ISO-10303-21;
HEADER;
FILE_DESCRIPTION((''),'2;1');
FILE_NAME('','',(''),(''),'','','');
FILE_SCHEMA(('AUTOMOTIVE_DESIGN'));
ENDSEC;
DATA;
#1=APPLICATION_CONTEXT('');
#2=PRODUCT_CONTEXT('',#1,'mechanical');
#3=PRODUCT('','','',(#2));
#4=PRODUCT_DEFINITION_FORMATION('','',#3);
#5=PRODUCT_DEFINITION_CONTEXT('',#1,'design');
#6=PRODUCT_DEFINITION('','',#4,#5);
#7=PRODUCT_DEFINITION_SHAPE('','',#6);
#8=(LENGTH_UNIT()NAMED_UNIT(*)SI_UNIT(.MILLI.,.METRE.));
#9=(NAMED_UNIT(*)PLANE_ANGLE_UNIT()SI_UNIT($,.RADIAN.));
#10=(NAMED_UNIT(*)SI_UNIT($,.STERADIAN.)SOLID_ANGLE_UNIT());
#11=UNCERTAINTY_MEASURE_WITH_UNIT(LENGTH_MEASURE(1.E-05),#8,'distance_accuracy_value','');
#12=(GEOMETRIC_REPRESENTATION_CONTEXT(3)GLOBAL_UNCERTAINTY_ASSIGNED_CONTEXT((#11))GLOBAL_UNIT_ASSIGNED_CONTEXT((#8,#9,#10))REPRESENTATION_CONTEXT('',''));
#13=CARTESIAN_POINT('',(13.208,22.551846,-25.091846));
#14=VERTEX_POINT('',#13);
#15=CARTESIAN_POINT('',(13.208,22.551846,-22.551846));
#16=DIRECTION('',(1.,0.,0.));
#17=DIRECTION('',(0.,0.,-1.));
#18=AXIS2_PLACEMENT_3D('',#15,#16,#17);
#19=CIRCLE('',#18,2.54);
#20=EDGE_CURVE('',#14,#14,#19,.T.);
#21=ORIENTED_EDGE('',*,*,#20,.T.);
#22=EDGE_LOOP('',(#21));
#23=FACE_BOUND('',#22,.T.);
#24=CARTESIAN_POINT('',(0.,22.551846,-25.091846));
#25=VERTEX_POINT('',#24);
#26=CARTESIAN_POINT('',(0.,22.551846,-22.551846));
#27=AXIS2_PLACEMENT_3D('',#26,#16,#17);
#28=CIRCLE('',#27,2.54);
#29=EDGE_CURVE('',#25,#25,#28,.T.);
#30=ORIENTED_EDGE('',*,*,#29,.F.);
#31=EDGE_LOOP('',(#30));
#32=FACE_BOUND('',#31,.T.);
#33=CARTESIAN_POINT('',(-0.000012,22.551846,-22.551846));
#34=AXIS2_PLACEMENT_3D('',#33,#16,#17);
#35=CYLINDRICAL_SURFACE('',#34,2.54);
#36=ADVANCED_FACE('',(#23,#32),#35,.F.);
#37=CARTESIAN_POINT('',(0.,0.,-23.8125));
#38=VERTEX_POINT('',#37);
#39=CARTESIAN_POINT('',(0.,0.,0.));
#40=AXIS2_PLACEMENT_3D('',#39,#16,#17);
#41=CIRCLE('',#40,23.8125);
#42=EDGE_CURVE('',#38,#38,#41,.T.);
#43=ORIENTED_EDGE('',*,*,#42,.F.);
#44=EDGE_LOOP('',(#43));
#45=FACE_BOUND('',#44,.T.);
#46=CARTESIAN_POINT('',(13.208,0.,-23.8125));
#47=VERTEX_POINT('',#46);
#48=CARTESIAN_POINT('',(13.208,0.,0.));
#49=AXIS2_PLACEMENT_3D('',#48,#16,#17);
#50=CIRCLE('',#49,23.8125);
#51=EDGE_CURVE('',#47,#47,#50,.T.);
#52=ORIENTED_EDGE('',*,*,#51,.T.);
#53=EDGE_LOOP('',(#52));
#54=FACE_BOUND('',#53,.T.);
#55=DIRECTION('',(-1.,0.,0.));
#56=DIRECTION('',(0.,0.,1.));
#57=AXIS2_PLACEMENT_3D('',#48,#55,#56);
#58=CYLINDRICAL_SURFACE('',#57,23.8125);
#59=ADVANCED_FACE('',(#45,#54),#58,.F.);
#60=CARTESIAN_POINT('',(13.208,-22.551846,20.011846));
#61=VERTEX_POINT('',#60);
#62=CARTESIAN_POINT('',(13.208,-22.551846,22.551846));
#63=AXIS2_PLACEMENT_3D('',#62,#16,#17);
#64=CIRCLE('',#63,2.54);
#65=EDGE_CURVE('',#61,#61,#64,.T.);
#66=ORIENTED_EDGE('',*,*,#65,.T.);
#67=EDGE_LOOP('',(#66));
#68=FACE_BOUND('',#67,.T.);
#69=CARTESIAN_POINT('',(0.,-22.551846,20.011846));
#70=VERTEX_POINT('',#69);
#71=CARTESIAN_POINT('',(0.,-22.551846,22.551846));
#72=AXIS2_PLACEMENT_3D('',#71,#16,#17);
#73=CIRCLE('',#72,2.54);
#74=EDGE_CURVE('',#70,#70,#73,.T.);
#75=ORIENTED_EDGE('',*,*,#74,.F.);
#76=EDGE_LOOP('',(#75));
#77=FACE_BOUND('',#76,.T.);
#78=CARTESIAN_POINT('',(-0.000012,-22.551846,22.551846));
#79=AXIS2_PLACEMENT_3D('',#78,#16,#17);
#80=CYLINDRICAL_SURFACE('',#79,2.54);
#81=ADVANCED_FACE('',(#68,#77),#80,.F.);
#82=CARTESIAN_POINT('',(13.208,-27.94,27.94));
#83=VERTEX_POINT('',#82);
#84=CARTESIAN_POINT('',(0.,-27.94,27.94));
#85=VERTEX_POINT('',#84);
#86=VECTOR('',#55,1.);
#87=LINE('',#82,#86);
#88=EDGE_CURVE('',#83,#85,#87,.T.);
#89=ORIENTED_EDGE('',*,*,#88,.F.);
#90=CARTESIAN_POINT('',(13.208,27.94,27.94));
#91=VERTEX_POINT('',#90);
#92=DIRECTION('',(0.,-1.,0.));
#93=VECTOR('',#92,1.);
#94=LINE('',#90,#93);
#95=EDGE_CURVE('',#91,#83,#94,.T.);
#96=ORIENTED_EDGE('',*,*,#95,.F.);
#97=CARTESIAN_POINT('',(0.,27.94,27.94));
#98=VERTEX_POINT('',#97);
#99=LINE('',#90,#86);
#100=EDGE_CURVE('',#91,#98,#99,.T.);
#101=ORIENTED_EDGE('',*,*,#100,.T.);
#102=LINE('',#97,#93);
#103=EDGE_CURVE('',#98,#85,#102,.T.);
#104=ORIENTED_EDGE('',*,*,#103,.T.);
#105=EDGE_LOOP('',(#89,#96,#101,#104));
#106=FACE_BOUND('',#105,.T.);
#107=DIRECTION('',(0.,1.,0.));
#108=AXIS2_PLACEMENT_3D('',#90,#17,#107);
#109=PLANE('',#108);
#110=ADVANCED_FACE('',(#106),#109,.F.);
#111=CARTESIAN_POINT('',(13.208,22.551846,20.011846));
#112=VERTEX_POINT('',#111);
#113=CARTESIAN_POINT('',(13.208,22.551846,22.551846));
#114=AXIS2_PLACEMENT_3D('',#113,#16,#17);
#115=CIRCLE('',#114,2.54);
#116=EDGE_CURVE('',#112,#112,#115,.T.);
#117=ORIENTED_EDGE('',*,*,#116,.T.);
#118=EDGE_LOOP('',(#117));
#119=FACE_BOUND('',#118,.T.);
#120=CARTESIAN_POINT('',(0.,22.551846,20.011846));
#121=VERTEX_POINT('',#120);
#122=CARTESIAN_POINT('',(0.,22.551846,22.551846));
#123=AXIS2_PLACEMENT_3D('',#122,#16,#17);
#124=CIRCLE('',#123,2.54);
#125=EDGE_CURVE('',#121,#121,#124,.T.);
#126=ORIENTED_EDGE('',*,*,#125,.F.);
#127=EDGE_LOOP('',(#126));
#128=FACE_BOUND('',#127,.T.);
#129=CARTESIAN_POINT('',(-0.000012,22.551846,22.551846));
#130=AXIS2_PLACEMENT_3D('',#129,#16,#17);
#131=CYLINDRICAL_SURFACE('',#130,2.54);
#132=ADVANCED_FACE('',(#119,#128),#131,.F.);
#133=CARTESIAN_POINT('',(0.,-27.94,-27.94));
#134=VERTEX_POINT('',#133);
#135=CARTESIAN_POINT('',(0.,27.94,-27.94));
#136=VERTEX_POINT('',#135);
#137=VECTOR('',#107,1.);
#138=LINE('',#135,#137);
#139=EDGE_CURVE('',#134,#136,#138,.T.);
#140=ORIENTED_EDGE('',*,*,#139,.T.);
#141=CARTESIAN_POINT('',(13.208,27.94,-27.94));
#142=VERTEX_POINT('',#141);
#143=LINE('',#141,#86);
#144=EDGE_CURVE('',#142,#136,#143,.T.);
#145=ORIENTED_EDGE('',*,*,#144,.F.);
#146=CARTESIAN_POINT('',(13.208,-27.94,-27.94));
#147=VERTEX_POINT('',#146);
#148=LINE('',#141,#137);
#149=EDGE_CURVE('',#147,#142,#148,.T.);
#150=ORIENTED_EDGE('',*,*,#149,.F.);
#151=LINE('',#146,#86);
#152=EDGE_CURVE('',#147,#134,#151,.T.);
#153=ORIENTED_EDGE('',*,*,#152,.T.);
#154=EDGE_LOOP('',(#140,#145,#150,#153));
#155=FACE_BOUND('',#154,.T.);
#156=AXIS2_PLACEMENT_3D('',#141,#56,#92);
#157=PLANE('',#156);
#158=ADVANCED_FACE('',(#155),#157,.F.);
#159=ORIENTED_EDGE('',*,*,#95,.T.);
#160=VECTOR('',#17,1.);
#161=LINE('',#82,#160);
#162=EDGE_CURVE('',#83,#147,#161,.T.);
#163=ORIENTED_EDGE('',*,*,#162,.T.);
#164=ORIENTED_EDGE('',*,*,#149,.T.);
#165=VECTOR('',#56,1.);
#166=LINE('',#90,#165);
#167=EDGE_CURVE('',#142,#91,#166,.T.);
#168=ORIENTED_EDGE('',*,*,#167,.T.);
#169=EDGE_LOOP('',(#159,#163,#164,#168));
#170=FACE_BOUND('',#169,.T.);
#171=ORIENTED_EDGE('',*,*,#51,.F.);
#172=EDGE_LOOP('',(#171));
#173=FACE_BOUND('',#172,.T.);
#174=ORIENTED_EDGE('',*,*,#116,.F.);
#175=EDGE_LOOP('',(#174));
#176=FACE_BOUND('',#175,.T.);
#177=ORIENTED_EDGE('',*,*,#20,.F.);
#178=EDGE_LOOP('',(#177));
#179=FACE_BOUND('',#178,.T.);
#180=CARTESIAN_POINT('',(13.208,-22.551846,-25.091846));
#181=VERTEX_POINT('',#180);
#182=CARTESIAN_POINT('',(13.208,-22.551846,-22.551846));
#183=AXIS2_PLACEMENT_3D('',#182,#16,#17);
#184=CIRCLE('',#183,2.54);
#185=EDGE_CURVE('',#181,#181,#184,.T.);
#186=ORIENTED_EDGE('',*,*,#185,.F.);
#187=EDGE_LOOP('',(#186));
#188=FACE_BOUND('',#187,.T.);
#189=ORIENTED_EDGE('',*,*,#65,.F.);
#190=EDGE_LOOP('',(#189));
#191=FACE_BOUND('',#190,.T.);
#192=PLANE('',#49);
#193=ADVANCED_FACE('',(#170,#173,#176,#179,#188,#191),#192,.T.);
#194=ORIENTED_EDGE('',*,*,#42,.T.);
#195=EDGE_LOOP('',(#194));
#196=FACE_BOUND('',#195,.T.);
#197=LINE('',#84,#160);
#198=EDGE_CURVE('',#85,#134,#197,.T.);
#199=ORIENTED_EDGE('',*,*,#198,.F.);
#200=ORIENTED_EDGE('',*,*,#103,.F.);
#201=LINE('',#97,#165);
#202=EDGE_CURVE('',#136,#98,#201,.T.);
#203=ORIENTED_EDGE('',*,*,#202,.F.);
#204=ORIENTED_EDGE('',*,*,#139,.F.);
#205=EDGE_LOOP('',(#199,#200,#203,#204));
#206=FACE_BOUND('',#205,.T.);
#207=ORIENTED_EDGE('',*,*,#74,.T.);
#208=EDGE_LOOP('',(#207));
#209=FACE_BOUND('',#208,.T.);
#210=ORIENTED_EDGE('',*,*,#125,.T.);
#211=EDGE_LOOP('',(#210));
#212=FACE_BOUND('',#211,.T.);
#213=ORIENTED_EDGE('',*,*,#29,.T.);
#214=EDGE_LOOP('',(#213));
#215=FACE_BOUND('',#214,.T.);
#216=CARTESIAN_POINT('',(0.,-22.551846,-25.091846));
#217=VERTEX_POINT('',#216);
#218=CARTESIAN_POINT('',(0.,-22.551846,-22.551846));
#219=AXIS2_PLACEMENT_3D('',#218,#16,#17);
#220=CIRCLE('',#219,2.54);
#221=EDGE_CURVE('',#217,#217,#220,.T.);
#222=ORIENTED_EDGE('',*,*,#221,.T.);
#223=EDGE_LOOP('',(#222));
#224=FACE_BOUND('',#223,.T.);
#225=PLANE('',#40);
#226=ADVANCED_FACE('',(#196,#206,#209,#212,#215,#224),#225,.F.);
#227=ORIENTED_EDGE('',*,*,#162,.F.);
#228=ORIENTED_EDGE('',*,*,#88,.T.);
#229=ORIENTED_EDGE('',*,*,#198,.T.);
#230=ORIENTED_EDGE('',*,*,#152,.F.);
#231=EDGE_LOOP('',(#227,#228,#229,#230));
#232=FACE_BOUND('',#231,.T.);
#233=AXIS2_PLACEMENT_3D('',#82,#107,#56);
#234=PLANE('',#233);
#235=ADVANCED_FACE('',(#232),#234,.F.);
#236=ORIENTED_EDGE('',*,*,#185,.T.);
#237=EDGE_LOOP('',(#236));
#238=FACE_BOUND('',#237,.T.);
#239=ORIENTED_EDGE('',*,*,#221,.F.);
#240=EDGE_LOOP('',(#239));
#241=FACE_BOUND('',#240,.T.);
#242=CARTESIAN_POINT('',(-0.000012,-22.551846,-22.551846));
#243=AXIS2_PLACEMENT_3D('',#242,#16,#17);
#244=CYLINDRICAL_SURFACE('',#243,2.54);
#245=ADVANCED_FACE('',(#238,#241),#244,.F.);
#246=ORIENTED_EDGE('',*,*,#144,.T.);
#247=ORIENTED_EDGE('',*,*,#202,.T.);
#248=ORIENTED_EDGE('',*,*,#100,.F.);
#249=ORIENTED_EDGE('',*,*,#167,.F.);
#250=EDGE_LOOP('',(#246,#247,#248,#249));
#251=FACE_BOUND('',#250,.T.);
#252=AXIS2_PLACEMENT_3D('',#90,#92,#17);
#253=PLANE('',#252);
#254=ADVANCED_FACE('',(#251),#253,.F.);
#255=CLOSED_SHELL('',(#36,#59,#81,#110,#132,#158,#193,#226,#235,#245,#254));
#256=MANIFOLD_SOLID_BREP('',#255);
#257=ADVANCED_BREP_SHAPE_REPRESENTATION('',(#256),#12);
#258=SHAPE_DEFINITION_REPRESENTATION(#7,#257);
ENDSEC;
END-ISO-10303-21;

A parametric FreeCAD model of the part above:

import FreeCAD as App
import Part
import Sketcher

V = App.Vector
Q = App.Units.Quantity


def add_polygon(sketch, points):
    """Adds a closed chain of lines whose ends are joined by coincident constraints."""
    first, n = sketch.GeometryCount, len(points)
    for a, b in zip(points, points[1:] + points[:1]):
        sketch.addGeometry(Part.LineSegment(App.Vector(*a, 0), App.Vector(*b, 0)), False)
    for i in range(n):
        sketch.addConstraint(Sketcher.Constraint("Coincident", first + i, 2, first + (i + 1) % n, 1))

doc = App.newDocument("Part")
params = doc.addObject("Spreadsheet::Sheet", "Params")
for row, (alias, value) in enumerate([
    ("sketch1_diameter", "1.875 in"),
    ("sketch1_width", "2.2 in"),
    ("pad1_length", "0.52 in"),
    ("sketch2_diameter", "0.2 in"),
], start=1):
    params.set(f"A{row}", alias)
    params.set(f"B{row}", "=" + value)
    params.setAlias(f"B{row}", alias)

body = doc.addObject("PartDesign::Body", "Body")

sketch1 = body.newObject("Sketcher::SketchObject", "Sketch")
sketch1.AttachmentSupport = (doc.getObject("YZ_Plane"), [""])
sketch1.MapMode = "FlatFace"
add_polygon(sketch1, [(28, 28), (-28, 28), (-28, -28), (28, -28)])
sketch1.addGeometry(Part.Circle(V(0, 0, 0), V(0, 0, 1), 24), False)
sketch1.addConstraint(Sketcher.Constraint("Horizontal", 0))
sketch1.addConstraint(Sketcher.Constraint("Vertical", 1))
sketch1.addConstraint(Sketcher.Constraint("Horizontal", 2))
sketch1.addConstraint(Sketcher.Constraint("Vertical", 3))
sketch1.addConstraint(Sketcher.Constraint("Coincident", 4, 3, -1, 1))
sketch1.addConstraint(Sketcher.Constraint("Symmetric", 0, 2, 2, 2, -1, 1))
sketch1.addConstraint(Sketcher.Constraint("Equal", 2, 1))
sketch1.addConstraint(Sketcher.Constraint("Diameter", 4, Q("1.875 in")))
sketch1.addConstraint(Sketcher.Constraint("DistanceX", 0, 2, 0, 1, Q("2.2 in")))
sketch1.setExpression("Constraints[11]", "Params.sketch1_diameter")
sketch1.setExpression("Constraints[12]", "Params.sketch1_width")
pad1 = body.newObject("PartDesign::Pad", "Pad")
pad1.Profile = sketch1
pad1.setExpression("Length", "Params.pad1_length")

sketch2 = body.newObject("Sketcher::SketchObject", "Sketch001")
sketch2.AttachmentSupport = (doc.getObject("YZ_Plane"), [""])
sketch2.MapMode = "FlatFace"
sketch2.addGeometry(Part.Circle(V(-22.6, 22.6, 0), V(0, 0, 1), 2.5), False)
sketch2.addGeometry(Part.Circle(V(22.6, 22.6, 0), V(0, 0, 1), 2.5), False)
sketch2.addGeometry(Part.Circle(V(22.6, -22.6, 0), V(0, 0, 1), 2.5), False)
sketch2.addGeometry(Part.Circle(V(-22.6, -22.6, 0), V(0, 0, 1), 2.5), False)
sketch2.addConstraint(Sketcher.Constraint("Equal", 0, 1))
sketch2.addConstraint(Sketcher.Constraint("Equal", 1, 2))
sketch2.addConstraint(Sketcher.Constraint("Equal", 2, 3))
sketch2.addConstraint(Sketcher.Constraint("Symmetric", 0, 3, 2, 3, -1, 1))
sketch2.addConstraint(Sketcher.Constraint("Symmetric", 1, 3, 3, 3, -1, 1))
sketch2.addConstraint(Sketcher.Constraint("Symmetric", 0, 3, 1, 3, -2))
sketch2.addConstraint(Sketcher.Constraint("Diameter", 0, Q("0.2 in")))
sketch2.addConstraint(Sketcher.Constraint("DistanceX", 0, 3, -1, 1, 22.551846))
sketch2.addConstraint(Sketcher.Constraint("DistanceY", -1, 1, 0, 3, 22.551846))
sketch2.setExpression("Constraints[6]", "Params.sketch2_diameter")
pocket1 = body.newObject("PartDesign::Pocket", "Pocket")
pocket1.Profile = sketch2
pocket1.Type = "ThroughAll"
pocket1.Midplane = True

doc.recompute()
